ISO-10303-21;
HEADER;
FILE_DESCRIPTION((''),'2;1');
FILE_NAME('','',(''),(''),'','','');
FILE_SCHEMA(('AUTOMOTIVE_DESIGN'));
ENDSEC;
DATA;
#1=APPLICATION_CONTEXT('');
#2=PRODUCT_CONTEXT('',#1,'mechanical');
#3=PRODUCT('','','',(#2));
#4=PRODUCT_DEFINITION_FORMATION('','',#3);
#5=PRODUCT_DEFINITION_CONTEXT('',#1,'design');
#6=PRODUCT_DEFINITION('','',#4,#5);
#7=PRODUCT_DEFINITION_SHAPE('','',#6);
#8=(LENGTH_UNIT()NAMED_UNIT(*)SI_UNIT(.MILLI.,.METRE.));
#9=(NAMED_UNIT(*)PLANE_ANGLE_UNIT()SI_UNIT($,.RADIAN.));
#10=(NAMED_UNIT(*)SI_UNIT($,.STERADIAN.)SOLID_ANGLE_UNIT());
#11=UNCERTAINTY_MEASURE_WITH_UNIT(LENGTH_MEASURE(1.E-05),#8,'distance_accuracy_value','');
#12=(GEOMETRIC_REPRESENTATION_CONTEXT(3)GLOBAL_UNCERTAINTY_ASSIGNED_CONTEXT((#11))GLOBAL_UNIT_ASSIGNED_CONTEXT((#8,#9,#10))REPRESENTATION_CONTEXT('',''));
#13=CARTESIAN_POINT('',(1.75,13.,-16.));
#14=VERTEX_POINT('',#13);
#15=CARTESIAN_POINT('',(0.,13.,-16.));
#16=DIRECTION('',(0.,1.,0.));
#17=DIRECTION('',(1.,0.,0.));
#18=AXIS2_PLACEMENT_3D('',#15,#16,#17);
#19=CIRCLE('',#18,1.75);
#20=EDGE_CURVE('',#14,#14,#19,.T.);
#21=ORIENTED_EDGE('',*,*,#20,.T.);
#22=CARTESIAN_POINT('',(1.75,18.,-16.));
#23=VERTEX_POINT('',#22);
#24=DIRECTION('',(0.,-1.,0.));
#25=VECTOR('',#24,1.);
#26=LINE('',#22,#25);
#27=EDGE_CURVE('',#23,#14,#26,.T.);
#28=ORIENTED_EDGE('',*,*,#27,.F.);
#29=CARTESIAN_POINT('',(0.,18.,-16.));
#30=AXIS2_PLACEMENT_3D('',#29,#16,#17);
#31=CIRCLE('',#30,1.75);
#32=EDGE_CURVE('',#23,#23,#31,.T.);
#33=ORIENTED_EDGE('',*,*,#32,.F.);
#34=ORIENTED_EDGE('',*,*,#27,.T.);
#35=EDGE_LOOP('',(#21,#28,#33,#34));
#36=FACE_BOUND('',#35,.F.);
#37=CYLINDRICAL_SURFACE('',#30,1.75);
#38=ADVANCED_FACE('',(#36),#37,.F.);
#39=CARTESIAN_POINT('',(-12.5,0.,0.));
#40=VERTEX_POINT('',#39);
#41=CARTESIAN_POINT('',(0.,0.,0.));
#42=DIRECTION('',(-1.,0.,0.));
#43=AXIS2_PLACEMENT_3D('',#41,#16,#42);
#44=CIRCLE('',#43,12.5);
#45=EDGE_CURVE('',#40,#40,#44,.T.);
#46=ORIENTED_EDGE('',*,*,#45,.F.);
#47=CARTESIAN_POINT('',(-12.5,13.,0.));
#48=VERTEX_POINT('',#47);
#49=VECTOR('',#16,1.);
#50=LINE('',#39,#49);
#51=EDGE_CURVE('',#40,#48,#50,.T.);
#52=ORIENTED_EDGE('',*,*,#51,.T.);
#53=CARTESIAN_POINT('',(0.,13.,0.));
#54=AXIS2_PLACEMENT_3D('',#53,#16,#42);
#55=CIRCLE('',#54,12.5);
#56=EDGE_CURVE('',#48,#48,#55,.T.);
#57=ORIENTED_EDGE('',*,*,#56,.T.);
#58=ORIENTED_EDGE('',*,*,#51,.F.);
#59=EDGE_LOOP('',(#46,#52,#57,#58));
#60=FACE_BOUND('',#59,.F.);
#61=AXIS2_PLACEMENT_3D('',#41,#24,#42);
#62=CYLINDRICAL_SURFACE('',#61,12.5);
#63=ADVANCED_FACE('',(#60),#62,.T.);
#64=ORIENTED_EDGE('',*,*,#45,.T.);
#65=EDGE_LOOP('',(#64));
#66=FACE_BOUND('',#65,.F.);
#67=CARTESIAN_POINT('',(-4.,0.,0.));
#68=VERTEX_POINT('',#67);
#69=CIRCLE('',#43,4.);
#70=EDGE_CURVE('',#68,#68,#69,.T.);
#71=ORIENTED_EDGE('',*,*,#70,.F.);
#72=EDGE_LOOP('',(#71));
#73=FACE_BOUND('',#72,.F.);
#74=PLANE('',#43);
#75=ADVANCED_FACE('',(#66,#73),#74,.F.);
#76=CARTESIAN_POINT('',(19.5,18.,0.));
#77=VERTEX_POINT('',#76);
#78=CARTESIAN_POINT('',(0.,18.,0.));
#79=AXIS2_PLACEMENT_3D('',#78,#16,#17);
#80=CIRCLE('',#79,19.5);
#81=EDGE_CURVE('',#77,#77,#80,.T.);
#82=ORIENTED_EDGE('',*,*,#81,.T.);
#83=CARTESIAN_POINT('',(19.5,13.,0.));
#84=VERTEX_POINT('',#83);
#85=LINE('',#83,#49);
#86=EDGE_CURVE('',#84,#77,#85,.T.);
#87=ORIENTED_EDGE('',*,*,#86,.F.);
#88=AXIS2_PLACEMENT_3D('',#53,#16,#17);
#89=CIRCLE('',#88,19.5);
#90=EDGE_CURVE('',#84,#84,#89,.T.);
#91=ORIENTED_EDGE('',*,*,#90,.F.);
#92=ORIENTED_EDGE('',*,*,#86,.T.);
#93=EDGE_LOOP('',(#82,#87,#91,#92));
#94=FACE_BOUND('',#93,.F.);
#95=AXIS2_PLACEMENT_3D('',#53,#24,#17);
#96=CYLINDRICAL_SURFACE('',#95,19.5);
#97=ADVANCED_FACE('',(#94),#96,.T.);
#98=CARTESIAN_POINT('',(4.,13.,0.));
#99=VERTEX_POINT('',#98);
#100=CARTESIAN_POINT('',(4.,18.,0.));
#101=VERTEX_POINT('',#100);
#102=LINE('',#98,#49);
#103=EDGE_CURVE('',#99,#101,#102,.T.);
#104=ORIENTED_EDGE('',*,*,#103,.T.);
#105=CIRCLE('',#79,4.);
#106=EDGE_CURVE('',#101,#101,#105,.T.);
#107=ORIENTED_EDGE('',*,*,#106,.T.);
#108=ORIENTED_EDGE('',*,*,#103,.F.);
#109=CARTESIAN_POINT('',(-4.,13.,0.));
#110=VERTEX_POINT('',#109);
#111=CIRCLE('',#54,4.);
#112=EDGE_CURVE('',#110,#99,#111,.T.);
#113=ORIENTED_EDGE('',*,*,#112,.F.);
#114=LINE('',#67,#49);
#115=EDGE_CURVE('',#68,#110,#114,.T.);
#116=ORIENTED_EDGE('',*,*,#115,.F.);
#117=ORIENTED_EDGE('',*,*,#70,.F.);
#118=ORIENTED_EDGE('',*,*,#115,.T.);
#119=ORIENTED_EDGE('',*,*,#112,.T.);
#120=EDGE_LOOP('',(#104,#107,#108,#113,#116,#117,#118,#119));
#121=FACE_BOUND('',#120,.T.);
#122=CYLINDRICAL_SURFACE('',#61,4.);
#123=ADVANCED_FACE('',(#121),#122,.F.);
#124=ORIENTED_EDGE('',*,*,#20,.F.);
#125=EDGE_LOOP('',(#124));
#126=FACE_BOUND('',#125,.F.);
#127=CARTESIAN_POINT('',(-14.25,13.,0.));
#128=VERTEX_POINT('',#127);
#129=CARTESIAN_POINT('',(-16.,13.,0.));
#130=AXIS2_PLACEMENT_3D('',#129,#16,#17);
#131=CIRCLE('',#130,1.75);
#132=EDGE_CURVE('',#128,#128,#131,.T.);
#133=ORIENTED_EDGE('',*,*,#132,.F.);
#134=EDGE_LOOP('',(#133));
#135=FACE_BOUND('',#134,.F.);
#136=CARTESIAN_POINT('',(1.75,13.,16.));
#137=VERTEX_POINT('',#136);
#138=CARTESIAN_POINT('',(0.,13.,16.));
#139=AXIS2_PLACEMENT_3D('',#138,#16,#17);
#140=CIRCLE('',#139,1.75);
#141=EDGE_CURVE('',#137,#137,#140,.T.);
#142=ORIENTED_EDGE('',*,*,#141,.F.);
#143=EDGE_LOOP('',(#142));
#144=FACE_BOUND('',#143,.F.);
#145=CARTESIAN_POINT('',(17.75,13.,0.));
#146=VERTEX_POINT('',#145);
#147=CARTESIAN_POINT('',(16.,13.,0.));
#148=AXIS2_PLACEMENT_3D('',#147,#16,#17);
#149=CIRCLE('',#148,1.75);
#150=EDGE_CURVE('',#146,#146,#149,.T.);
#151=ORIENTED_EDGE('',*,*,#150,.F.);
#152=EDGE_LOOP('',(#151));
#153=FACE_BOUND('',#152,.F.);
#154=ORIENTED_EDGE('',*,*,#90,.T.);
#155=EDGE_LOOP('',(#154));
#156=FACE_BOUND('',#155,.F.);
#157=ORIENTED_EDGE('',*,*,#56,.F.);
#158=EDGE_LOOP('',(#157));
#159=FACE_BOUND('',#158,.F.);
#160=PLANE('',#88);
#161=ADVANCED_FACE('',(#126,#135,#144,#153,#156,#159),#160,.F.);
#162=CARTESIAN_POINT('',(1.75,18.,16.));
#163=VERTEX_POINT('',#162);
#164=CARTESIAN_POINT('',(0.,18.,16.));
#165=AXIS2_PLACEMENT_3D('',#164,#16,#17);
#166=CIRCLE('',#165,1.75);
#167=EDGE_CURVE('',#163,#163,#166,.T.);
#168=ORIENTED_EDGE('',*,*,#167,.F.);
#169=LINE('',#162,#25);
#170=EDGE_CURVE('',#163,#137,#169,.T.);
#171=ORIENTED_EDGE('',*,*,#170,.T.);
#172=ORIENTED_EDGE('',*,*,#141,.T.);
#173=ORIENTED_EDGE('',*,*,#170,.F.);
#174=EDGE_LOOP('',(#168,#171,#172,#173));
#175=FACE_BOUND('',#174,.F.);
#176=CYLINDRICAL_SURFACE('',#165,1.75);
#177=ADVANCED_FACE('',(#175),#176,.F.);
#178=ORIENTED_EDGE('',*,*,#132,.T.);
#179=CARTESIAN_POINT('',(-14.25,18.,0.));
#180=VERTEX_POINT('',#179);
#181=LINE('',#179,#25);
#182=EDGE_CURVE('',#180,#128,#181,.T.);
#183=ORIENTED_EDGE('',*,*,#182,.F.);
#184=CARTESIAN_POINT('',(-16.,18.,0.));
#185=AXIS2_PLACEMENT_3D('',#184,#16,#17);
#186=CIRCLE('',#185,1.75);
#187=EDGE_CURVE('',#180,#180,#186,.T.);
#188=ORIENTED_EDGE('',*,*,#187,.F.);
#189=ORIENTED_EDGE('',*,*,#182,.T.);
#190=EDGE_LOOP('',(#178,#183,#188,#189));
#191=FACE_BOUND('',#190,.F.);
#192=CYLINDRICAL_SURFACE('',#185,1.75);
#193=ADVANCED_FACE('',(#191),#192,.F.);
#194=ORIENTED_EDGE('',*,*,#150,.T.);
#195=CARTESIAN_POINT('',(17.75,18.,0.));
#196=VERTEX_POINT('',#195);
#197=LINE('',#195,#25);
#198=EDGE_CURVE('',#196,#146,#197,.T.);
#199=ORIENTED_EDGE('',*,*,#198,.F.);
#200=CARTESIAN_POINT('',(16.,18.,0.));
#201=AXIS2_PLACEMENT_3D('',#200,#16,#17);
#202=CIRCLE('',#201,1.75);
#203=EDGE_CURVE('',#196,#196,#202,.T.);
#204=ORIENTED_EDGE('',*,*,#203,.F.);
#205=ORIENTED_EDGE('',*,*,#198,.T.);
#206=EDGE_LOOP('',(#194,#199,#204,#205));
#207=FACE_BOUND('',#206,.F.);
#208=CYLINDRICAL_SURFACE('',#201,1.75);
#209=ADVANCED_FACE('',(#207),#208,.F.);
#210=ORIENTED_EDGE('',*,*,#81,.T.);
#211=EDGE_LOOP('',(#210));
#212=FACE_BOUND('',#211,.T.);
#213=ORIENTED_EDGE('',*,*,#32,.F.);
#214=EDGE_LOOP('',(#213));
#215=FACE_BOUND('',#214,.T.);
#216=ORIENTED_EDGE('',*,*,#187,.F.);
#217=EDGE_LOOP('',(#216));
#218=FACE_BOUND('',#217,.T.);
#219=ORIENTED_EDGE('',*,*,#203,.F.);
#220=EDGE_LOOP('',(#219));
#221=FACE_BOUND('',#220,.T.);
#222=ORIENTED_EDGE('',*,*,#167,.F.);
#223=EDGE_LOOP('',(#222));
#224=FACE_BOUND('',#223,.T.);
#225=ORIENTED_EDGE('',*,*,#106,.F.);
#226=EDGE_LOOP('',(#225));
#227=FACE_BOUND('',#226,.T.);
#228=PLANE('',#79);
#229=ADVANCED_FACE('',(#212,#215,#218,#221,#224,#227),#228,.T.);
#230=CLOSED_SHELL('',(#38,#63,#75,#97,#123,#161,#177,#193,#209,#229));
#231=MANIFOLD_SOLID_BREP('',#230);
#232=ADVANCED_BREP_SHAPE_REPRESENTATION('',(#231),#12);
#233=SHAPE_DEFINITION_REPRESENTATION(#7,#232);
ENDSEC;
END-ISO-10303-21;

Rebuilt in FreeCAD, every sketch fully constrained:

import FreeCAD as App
import Part
import Sketcher

doc = App.newDocument("Part")
body = doc.addObject("PartDesign::Body", "Body")

sketch1 = body.newObject("Sketcher::SketchObject", "Sketch")
sketch1.AttachmentSupport = (doc.getObject("XZ_Plane"), [""])
sketch1.MapMode = "FlatFace"
sketch1.addGeometry([
    Part.Circle(App.Vector(0, 0, 0), App.Vector(0, 0, 1), 12.5),
    Part.Circle(App.Vector(0, 0, 0), App.Vector(0, 0, 1), 4),
], False)
sketch1.addConstraint([
    Sketcher.Constraint("Coincident", 0, 3, -1, 1),
    Sketcher.Constraint("Coincident", 1, 3, -1, 1),
    Sketcher.Constraint("Diameter", 0, 25.0),
    Sketcher.Constraint("Diameter", 1, 8.0),
])
pad1 = body.newObject("PartDesign::Pad", "Pad")
pad1.Profile = sketch1
pad1.Length = 13
pad1.Reversed = True

sketch2 = body.newObject("Sketcher::SketchObject", "Sketch001")
sketch2.AttachmentSupport = (doc.getObject("XZ_Plane"), [""])
sketch2.MapMode = "FlatFace"
sketch2.AttachmentOffset = App.Placement(App.Vector(0, 0, -13), App.Rotation())
sketch2.addGeometry([
    Part.Circle(App.Vector(0, 0, 0), App.Vector(0, 0, 1), 19.5),
    Part.Circle(App.Vector(0, 0, 0), App.Vector(0, 0, 1), 4),
], False)
sketch2.addConstraint([
    Sketcher.Constraint("Coincident", 0, 3, -1, 1),
    Sketcher.Constraint("Coincident", 1, 3, -1, 1),
    Sketcher.Constraint("Diameter", 0, 39.0),
    Sketcher.Constraint("Diameter", 1, 8.0),
])
pad2 = body.newObject("PartDesign::Pad", "Pad001")
pad2.Profile = sketch2
pad2.Length = 5
pad2.Reversed = True

sketch3 = body.newObject("Sketcher::SketchObject", "Sketch002")
sketch3.AttachmentSupport = (doc.getObject("XZ_Plane"), [""])
sketch3.MapMode = "FlatFace"
sketch3.AttachmentOffset = App.Placement(App.Vector(0, 0, -18), App.Rotation())
sketch3.addGeometry([
    Part.Circle(App.Vector(-16, 0, 0), App.Vector(0, 0, 1), 1.8),
    Part.Circle(App.Vector(0, 16, 0), App.Vector(0, 0, 1), 1.8),
    Part.Circle(App.Vector(16, 0, 0), App.Vector(0, 0, 1), 1.8),
    Part.Circle(App.Vector(0, -16, 0), App.Vector(0, 0, 1), 1.8),
], False)
sketch3.addConstraint([
    Sketcher.Constraint("Equal", 0, 1),
    Sketcher.Constraint("Equal", 1, 2),
    Sketcher.Constraint("Equal", 2, 3),
    Sketcher.Constraint("Symmetric", 0, 3, 2, 3, -1, 1),
    Sketcher.Constraint("Symmetric", 1, 3, 3, 3, -1, 1),
    Sketcher.Constraint("PointOnObject", 0, 3, -1),
    Sketcher.Constraint("PointOnObject", 1, 3, -2),
    Sketcher.Constraint("Diameter", 0, 3.5),
    Sketcher.Constraint("DistanceX", 0, 3, 2, 3, 32.0),
    Sketcher.Constraint("DistanceY", 3, 3, 1, 3, 32.0),
])
pocket1 = body.newObject("PartDesign::Pocket", "Pocket")
pocket1.Profile = sketch3
pocket1.Length = 5
pocket1.Reversed = True

doc.recompute()
